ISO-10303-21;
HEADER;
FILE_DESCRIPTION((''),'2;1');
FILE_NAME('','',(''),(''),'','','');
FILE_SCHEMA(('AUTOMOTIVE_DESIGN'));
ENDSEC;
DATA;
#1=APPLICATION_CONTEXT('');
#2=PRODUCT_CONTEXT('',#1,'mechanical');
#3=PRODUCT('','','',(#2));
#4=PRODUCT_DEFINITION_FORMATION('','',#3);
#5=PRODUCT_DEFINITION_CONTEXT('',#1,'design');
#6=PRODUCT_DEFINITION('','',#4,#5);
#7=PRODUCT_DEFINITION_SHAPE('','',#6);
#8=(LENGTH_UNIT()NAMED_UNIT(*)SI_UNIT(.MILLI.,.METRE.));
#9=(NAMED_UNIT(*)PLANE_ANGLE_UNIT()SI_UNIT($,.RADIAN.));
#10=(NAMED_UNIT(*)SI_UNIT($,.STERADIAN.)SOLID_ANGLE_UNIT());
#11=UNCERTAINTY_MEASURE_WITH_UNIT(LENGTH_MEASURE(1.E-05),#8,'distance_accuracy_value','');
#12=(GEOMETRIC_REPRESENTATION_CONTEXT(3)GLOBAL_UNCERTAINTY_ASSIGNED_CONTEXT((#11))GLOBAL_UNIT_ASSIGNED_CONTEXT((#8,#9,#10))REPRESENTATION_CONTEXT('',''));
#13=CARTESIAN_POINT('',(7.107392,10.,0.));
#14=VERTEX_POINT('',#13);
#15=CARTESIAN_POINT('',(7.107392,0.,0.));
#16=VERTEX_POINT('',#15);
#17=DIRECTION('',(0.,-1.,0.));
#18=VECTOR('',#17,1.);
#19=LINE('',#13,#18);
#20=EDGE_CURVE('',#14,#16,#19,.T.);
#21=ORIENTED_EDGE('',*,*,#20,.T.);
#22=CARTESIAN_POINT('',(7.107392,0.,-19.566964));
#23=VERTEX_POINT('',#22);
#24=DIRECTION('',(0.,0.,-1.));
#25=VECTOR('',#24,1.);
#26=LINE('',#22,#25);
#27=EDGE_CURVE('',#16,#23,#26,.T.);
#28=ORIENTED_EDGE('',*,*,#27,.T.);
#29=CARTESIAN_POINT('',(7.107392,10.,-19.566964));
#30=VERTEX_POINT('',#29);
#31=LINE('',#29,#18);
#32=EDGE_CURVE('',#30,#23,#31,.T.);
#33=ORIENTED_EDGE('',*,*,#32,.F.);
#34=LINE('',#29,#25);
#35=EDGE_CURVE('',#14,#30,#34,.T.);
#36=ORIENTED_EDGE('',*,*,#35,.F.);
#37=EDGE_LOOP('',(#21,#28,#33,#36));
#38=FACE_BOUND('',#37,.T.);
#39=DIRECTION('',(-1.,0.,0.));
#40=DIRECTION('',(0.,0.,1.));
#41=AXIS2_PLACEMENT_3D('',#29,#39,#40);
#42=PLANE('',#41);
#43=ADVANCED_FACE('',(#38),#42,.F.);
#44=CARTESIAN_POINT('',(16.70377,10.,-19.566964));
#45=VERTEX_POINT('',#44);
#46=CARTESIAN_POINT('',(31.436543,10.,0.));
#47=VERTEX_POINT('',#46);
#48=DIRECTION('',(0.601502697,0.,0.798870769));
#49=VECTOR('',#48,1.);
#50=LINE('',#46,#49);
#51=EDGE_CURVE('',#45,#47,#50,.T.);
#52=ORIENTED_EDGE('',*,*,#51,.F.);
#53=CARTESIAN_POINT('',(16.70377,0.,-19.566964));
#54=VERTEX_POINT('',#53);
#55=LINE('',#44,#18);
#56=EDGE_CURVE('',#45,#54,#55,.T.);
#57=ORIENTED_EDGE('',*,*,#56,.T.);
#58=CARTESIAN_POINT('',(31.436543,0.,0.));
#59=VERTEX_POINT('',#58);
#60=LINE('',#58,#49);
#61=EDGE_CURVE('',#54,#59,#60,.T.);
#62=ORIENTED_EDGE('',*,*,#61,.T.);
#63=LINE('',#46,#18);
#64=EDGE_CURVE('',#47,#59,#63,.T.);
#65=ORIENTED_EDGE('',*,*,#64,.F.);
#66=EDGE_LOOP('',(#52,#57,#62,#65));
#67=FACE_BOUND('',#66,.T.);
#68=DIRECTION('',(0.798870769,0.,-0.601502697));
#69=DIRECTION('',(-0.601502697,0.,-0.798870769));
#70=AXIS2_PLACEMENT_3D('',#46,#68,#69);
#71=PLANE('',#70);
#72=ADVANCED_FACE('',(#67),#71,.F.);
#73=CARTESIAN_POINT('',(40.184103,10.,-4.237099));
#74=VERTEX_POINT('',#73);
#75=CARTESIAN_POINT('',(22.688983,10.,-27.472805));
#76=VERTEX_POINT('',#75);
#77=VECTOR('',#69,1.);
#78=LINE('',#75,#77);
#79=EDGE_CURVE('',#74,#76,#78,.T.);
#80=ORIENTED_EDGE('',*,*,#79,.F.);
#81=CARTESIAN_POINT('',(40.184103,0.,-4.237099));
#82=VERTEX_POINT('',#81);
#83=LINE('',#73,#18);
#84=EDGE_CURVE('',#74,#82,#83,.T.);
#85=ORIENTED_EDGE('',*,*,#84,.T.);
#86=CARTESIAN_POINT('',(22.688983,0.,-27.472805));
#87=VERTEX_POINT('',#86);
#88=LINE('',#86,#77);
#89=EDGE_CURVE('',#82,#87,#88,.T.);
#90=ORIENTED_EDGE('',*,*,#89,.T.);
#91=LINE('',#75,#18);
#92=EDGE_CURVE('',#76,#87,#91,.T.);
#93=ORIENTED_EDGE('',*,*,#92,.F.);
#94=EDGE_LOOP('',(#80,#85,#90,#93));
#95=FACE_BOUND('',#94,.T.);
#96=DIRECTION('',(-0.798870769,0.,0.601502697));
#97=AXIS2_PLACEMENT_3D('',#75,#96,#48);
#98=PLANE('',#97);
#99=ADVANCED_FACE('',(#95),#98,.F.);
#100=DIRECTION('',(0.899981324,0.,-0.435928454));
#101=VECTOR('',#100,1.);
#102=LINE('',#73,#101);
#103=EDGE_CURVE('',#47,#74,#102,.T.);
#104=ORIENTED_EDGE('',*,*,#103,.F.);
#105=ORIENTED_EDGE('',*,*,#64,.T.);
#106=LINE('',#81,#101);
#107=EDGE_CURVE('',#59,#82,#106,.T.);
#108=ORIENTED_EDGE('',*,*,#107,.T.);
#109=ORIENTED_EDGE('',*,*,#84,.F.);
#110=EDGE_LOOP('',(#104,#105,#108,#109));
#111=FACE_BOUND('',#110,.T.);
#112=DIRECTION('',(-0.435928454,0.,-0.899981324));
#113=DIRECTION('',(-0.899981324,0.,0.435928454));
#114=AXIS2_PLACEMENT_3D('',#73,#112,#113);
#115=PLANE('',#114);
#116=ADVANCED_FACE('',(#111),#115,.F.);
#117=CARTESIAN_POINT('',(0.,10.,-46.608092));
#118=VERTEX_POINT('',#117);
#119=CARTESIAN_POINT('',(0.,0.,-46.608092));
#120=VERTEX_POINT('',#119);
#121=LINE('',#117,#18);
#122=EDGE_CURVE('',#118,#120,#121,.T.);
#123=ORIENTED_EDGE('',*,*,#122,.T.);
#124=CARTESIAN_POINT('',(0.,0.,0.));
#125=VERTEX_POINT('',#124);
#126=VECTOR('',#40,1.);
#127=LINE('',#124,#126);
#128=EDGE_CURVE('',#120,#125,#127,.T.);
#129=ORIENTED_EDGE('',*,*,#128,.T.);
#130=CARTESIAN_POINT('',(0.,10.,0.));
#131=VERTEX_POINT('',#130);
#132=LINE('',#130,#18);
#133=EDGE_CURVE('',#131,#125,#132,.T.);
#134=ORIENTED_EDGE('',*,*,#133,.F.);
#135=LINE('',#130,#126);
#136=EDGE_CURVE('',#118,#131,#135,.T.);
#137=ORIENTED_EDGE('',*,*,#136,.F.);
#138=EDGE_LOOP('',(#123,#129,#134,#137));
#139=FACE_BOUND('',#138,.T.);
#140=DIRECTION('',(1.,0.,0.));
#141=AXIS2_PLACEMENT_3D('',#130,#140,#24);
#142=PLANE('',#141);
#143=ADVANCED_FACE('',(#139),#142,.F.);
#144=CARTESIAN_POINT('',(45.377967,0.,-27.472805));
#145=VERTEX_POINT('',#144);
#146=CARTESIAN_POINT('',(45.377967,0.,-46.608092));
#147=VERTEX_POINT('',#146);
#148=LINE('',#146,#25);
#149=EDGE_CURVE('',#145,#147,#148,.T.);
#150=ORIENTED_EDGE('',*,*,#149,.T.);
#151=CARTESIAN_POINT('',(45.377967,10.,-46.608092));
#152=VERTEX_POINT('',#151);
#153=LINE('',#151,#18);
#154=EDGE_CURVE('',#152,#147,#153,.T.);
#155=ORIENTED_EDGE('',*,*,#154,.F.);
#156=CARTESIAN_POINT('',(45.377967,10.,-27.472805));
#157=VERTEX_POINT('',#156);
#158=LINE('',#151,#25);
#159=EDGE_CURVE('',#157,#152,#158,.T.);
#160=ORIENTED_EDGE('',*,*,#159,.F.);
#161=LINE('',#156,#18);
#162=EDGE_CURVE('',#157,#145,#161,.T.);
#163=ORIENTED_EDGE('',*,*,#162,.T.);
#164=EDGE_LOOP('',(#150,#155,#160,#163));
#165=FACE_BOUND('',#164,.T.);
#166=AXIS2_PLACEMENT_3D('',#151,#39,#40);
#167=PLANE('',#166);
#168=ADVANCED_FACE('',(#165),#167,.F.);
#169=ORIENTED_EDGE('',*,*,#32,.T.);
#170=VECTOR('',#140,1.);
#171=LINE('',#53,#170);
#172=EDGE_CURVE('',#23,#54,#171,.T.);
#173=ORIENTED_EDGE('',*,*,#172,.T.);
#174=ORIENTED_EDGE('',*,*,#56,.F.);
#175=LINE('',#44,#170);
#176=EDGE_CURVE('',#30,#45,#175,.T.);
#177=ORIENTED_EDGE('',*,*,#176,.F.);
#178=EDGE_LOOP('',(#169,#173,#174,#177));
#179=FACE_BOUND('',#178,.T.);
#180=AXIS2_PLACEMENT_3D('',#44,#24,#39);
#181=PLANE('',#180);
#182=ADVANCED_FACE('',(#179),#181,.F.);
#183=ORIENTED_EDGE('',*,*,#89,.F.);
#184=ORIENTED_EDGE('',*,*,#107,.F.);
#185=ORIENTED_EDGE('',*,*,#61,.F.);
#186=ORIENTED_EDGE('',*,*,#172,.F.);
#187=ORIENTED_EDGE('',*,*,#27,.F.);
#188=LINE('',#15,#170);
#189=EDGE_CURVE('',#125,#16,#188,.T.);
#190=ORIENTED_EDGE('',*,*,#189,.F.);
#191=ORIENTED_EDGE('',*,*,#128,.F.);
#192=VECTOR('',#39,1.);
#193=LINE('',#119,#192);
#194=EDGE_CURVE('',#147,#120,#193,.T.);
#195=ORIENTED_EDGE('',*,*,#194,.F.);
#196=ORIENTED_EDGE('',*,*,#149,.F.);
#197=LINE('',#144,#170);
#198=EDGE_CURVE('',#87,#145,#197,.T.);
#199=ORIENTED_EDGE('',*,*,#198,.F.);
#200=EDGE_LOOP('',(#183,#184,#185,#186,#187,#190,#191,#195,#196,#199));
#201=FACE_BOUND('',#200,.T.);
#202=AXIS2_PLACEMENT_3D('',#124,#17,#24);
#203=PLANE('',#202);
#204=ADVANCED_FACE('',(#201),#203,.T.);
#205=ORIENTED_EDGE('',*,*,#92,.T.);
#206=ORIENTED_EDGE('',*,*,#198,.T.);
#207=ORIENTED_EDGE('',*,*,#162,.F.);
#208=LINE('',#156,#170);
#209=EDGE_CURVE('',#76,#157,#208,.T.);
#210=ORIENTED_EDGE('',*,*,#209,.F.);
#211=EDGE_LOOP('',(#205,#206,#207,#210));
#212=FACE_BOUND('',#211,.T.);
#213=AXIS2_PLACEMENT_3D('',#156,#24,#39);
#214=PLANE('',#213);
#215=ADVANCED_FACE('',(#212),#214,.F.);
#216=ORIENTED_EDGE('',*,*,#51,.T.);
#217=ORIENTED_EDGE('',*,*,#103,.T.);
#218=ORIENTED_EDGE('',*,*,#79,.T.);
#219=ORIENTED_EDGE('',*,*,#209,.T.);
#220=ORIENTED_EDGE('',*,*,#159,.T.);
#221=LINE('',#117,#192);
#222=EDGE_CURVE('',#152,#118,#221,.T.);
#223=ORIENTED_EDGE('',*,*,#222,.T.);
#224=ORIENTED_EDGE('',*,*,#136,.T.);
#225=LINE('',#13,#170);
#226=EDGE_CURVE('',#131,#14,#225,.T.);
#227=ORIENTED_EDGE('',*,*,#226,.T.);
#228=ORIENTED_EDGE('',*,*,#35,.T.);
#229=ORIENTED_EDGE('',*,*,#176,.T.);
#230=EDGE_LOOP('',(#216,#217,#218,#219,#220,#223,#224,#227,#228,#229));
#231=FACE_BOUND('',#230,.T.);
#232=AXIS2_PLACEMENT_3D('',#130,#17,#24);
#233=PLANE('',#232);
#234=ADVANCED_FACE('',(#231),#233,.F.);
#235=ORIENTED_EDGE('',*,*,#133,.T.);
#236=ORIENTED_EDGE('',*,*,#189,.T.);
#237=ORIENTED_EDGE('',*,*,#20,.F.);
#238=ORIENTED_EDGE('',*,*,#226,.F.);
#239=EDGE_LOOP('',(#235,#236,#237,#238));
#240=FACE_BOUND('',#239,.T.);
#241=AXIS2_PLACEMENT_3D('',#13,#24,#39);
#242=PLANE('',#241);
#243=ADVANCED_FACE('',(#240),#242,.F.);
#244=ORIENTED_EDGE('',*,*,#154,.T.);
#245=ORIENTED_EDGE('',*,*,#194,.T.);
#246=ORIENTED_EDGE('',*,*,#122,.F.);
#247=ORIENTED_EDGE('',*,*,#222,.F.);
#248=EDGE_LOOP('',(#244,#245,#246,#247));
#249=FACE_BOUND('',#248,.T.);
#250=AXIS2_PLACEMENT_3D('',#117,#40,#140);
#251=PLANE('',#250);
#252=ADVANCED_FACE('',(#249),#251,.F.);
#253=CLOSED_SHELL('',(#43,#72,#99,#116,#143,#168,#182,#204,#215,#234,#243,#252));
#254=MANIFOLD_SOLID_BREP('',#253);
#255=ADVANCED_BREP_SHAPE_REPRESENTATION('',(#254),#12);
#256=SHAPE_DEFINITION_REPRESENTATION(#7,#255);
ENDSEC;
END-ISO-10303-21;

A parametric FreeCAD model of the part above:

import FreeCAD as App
import Part
import Sketcher

V = App.Vector

doc = App.newDocument("Part")
body = doc.addObject("PartDesign::Body", "Body")

sketch1 = body.newObject("Sketcher::SketchObject", "Sketch")
sketch1.AttachmentSupport = (doc.getObject("XZ_Plane"), [""])
sketch1.MapMode = "FlatFace"
sketch1.addGeometry([
    Part.LineSegment(V(0, -47, 0), V(0, 0, 0)),
    Part.LineSegment(V(0, 0, 0), V(7, 0, 0)),
    Part.LineSegment(V(7, 0, 0), V(7, -20, 0)),
    Part.LineSegment(V(7, -20, 0), V(17, -20, 0)),
    Part.LineSegment(V(17, -20, 0), V(31, 0, 0)),
    Part.LineSegment(V(31, 0, 0), V(40, -4, 0)),
    Part.LineSegment(V(40, -4, 0), V(23, -27, 0)),
    Part.LineSegment(V(23, -27, 0), V(45, -27, 0)),
    Part.LineSegment(V(45, -27, 0), V(45, -47, 0)),
    Part.LineSegment(V(45, -47, 0), V(0, -47, 0)),
], False)
sketch1.addConstraint([
    Sketcher.Constraint("Coincident", 0, 2, 1, 1),
    Sketcher.Constraint("Coincident", 1, 2, 2, 1),
    Sketcher.Constraint("Coincident", 2, 2, 3, 1),
    Sketcher.Constraint("Coincident", 3, 2, 4, 1),
    Sketcher.Constraint("Coincident", 4, 2, 5, 1),
    Sketcher.Constraint("Coincident", 5, 2, 6, 1),
    Sketcher.Constraint("Coincident", 6, 2, 7, 1),
    Sketcher.Constraint("Coincident", 7, 2, 8, 1),
    Sketcher.Constraint("Coincident", 8, 2, 9, 1),
    Sketcher.Constraint("Coincident", 9, 2, 0, 1),
    Sketcher.Constraint("Vertical", 0),
    Sketcher.Constraint("Horizontal", 1),
    Sketcher.Constraint("Vertical", 2),
    Sketcher.Constraint("Horizontal", 3),
    Sketcher.Constraint("Horizontal", 7),
    Sketcher.Constraint("Vertical", 8),
    Sketcher.Constraint("Horizontal", 9),
    Sketcher.Constraint("Coincident", 0, 2, -1, 1),
    Sketcher.Constraint("PointOnObject", 4, 2, -1),
    Sketcher.Constraint("Parallel", 4, 6),
    Sketcher.Constraint("DistanceY", 5, 2, -1, 1, 4.237099),
    Sketcher.Constraint("Distance", 4, 24.493278),
    Sketcher.Constraint("DistanceX", 1, 1, 1, 2, 7.107392),
    Sketcher.Constraint("DistanceX", 3, 1, 3, 2, 9.596378),
    Sketcher.Constraint("DistanceX", 7, 1, 7, 2, 22.688983),
    Sketcher.Constraint("DistanceX", 9, 2, 9, 1, 45.377967),
    Sketcher.Constraint("DistanceY", 0, 1, 0, 2, 46.608092),
    Sketcher.Constraint("DistanceY", 2, 2, 2, 1, 19.566964),
    Sketcher.Constraint("DistanceY", 8, 2, 8, 1, 19.135287),
])
pad1 = body.newObject("PartDesign::Pad", "Pad")
pad1.Profile = sketch1
pad1.Length = 10
pad1.Reversed = True

doc.recompute()
